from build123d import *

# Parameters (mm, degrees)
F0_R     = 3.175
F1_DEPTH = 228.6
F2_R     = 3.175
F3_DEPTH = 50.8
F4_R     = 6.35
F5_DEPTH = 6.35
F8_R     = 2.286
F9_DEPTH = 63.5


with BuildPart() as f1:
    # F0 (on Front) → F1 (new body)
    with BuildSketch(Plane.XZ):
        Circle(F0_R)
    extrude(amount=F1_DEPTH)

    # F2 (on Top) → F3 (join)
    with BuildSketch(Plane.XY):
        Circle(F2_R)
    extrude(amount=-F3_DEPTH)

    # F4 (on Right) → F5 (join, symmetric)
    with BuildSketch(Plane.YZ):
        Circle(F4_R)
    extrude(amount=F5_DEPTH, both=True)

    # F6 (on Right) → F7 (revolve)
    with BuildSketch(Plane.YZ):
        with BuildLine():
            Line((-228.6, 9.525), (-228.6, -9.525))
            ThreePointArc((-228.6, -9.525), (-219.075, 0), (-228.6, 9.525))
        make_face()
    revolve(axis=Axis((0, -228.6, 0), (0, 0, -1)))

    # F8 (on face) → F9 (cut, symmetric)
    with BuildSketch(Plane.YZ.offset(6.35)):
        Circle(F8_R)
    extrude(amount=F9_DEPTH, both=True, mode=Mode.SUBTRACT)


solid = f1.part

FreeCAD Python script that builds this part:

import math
import FreeCAD as App
import Part
import Sketcher
from FreeCAD import Vector
Q = App.Units.Quantity

doc = App.newDocument("Part")
params = doc.addObject("Spreadsheet::Sheet", "Params")
for row, (alias, value) in enumerate([
    ("sketch1_diameter", "0.25 in"),
    ("pad1_length", "9 in"),
    ("sketch2_diameter", "0.25 in"),
    ("pad2_length", "2 in"),
    ("sketch3_diameter", "0.5 in"),
    ("pad3_length", "0.5 in"),
    ("sketch4_radius", "0.375 in"),
    ("revolution_angle", "360 deg"),
    ("sketch5_diameter", "0.18 in"),
    ("pocket1_length", "5 in"),
], start=1):
    params.set(f"A{row}", alias)
    params.set(f"B{row}", "=" + value)
    params.setAlias(f"B{row}", alias)

body = doc.addObject("PartDesign::Body", "Body")

# Sketch on XZ plane
sketch1 = doc.addObject("Sketcher::SketchObject", "Sketch")
body.addObject(sketch1)
sketch1.AttachmentSupport = (doc.XZ_Plane, [""])
sketch1.MapMode = "FlatFace"
sketch1.addGeometry(Part.Circle(Vector(0, 0, 0), Vector(0, 0, 1), 3.2), False)
sketch1.addConstraint(Sketcher.Constraint("Coincident", 0, 3, -1, 1))
sketch1.addConstraint(Sketcher.Constraint("Diameter", 0, Q("0.25 in")))
sketch1.setExpression("Constraints[1]", "Params.sketch1_diameter")
pad1 = doc.addObject("PartDesign::Pad", "Pad")
body.addObject(pad1)
pad1.Profile = sketch1
pad1.setExpression("Length", "Params.pad1_length")

# Sketch on XY plane
sketch2 = doc.addObject("Sketcher::SketchObject", "Sketch001")
body.addObject(sketch2)
sketch2.AttachmentSupport = (doc.XY_Plane, [""])
sketch2.MapMode = "FlatFace"
sketch2.addGeometry(Part.Circle(Vector(0, 0, 0), Vector(0, 0, 1), 3.2), False)
sketch2.addConstraint(Sketcher.Constraint("Coincident", 0, 3, -1, 1))
sketch2.addConstraint(Sketcher.Constraint("Diameter", 0, Q("0.25 in")))
sketch2.setExpression("Constraints[1]", "Params.sketch2_diameter")
pad2 = doc.addObject("PartDesign::Pad", "Pad001")
body.addObject(pad2)
pad2.Profile = sketch2
pad2.setExpression("Length", "Params.pad2_length")
pad2.Reversed = True

# Sketch on YZ plane
sketch3 = doc.addObject("Sketcher::SketchObject", "Sketch002")
body.addObject(sketch3)
sketch3.AttachmentSupport = (doc.YZ_Plane, [""])
sketch3.MapMode = "FlatFace"
sketch3.addGeometry(Part.Circle(Vector(0, 0, 0), Vector(0, 0, 1), 6), False)
sketch3.addConstraint(Sketcher.Constraint("Coincident", 0, 3, -1, 1))
sketch3.addConstraint(Sketcher.Constraint("Diameter", 0, Q("0.5 in")))
sketch3.setExpression("Constraints[1]", "Params.sketch3_diameter")
pad3 = doc.addObject("PartDesign::Pad", "Pad002")
body.addObject(pad3)
pad3.Profile = sketch3
pad3.setExpression("Length", "Params.pad3_length")
pad3.Midplane = True

# Sketch on YZ plane
sketch4 = doc.addObject("Sketcher::SketchObject", "Sketch003")
body.addObject(sketch4)
sketch4.AttachmentSupport = (doc.YZ_Plane, [""])
sketch4.MapMode = "FlatFace"
sketch4.addGeometry(Part.LineSegment(Vector(-229, 10, 0), Vector(-229, -10, 0)), False)
sketch4.addGeometry(Part.ArcOfCircle(Part.Circle(Vector(-229, 0, 0), Vector(0, 0, 1), 10), math.radians(-90), math.radians(90)), False)
sketch4.addGeometry(Part.LineSegment(Vector(-229, 10, 0), Vector(-229, -10, 0)), True)  # axis
sketch4.addConstraint(Sketcher.Constraint("Coincident", 0, 1, 1, 2))
sketch4.addConstraint(Sketcher.Constraint("Coincident", 1, 1, 0, 2))
sketch4.addConstraint(Sketcher.Constraint("Vertical", 0))
sketch4.addConstraint(Sketcher.Constraint("Vertical", 2))
sketch4.addConstraint(Sketcher.Constraint("Coincident", 2, 1, 0, 1))
sketch4.addConstraint(Sketcher.Constraint("PointOnObject", 1, 3, -1))
sketch4.addConstraint(Sketcher.Constraint("Vertical", 1, 3, 0, 1))
sketch4.addConstraint(Sketcher.Constraint("Equal", 0, 2))
sketch4.addConstraint(Sketcher.Constraint("DistanceX", 1, 3, -1, 1, Q("9 in")))
sketch4.addConstraint(Sketcher.Constraint("Radius", 1, Q("0.375 in")))
sketch4.setExpression("Constraints[9]", "Params.sketch4_radius")
revolution = doc.addObject("PartDesign::Revolution", "Revolution")
body.addObject(revolution)
revolution.Profile = sketch4
revolution.ReferenceAxis = (sketch4, ["Axis0"])
revolution.setExpression("Angle", "Params.revolution_angle")

# Sketch on YZ plane
sketch5 = doc.addObject("Sketcher::SketchObject", "Sketch004")
body.addObject(sketch5)
sketch5.AttachmentSupport = (doc.YZ_Plane, [""])
sketch5.MapMode = "FlatFace"
sketch5.AttachmentOffset = App.Placement(Vector(0, 0, 0.25 * 25.4), App.Rotation())
sketch5.addGeometry(Part.Circle(Vector(0, 0, 0), Vector(0, 0, 1), 2.3), False)
sketch5.addConstraint(Sketcher.Constraint("Coincident", 0, 3, -1, 1))
sketch5.addConstraint(Sketcher.Constraint("Diameter", 0, Q("0.18 in")))
sketch5.setExpression("Constraints[1]", "Params.sketch5_diameter")
pocket1 = doc.addObject("PartDesign::Pocket", "Pocket")
body.addObject(pocket1)
pocket1.Profile = sketch5
pocket1.setExpression("Length", "Params.pocket1_length")
pocket1.Midplane = True

doc.recompute()
